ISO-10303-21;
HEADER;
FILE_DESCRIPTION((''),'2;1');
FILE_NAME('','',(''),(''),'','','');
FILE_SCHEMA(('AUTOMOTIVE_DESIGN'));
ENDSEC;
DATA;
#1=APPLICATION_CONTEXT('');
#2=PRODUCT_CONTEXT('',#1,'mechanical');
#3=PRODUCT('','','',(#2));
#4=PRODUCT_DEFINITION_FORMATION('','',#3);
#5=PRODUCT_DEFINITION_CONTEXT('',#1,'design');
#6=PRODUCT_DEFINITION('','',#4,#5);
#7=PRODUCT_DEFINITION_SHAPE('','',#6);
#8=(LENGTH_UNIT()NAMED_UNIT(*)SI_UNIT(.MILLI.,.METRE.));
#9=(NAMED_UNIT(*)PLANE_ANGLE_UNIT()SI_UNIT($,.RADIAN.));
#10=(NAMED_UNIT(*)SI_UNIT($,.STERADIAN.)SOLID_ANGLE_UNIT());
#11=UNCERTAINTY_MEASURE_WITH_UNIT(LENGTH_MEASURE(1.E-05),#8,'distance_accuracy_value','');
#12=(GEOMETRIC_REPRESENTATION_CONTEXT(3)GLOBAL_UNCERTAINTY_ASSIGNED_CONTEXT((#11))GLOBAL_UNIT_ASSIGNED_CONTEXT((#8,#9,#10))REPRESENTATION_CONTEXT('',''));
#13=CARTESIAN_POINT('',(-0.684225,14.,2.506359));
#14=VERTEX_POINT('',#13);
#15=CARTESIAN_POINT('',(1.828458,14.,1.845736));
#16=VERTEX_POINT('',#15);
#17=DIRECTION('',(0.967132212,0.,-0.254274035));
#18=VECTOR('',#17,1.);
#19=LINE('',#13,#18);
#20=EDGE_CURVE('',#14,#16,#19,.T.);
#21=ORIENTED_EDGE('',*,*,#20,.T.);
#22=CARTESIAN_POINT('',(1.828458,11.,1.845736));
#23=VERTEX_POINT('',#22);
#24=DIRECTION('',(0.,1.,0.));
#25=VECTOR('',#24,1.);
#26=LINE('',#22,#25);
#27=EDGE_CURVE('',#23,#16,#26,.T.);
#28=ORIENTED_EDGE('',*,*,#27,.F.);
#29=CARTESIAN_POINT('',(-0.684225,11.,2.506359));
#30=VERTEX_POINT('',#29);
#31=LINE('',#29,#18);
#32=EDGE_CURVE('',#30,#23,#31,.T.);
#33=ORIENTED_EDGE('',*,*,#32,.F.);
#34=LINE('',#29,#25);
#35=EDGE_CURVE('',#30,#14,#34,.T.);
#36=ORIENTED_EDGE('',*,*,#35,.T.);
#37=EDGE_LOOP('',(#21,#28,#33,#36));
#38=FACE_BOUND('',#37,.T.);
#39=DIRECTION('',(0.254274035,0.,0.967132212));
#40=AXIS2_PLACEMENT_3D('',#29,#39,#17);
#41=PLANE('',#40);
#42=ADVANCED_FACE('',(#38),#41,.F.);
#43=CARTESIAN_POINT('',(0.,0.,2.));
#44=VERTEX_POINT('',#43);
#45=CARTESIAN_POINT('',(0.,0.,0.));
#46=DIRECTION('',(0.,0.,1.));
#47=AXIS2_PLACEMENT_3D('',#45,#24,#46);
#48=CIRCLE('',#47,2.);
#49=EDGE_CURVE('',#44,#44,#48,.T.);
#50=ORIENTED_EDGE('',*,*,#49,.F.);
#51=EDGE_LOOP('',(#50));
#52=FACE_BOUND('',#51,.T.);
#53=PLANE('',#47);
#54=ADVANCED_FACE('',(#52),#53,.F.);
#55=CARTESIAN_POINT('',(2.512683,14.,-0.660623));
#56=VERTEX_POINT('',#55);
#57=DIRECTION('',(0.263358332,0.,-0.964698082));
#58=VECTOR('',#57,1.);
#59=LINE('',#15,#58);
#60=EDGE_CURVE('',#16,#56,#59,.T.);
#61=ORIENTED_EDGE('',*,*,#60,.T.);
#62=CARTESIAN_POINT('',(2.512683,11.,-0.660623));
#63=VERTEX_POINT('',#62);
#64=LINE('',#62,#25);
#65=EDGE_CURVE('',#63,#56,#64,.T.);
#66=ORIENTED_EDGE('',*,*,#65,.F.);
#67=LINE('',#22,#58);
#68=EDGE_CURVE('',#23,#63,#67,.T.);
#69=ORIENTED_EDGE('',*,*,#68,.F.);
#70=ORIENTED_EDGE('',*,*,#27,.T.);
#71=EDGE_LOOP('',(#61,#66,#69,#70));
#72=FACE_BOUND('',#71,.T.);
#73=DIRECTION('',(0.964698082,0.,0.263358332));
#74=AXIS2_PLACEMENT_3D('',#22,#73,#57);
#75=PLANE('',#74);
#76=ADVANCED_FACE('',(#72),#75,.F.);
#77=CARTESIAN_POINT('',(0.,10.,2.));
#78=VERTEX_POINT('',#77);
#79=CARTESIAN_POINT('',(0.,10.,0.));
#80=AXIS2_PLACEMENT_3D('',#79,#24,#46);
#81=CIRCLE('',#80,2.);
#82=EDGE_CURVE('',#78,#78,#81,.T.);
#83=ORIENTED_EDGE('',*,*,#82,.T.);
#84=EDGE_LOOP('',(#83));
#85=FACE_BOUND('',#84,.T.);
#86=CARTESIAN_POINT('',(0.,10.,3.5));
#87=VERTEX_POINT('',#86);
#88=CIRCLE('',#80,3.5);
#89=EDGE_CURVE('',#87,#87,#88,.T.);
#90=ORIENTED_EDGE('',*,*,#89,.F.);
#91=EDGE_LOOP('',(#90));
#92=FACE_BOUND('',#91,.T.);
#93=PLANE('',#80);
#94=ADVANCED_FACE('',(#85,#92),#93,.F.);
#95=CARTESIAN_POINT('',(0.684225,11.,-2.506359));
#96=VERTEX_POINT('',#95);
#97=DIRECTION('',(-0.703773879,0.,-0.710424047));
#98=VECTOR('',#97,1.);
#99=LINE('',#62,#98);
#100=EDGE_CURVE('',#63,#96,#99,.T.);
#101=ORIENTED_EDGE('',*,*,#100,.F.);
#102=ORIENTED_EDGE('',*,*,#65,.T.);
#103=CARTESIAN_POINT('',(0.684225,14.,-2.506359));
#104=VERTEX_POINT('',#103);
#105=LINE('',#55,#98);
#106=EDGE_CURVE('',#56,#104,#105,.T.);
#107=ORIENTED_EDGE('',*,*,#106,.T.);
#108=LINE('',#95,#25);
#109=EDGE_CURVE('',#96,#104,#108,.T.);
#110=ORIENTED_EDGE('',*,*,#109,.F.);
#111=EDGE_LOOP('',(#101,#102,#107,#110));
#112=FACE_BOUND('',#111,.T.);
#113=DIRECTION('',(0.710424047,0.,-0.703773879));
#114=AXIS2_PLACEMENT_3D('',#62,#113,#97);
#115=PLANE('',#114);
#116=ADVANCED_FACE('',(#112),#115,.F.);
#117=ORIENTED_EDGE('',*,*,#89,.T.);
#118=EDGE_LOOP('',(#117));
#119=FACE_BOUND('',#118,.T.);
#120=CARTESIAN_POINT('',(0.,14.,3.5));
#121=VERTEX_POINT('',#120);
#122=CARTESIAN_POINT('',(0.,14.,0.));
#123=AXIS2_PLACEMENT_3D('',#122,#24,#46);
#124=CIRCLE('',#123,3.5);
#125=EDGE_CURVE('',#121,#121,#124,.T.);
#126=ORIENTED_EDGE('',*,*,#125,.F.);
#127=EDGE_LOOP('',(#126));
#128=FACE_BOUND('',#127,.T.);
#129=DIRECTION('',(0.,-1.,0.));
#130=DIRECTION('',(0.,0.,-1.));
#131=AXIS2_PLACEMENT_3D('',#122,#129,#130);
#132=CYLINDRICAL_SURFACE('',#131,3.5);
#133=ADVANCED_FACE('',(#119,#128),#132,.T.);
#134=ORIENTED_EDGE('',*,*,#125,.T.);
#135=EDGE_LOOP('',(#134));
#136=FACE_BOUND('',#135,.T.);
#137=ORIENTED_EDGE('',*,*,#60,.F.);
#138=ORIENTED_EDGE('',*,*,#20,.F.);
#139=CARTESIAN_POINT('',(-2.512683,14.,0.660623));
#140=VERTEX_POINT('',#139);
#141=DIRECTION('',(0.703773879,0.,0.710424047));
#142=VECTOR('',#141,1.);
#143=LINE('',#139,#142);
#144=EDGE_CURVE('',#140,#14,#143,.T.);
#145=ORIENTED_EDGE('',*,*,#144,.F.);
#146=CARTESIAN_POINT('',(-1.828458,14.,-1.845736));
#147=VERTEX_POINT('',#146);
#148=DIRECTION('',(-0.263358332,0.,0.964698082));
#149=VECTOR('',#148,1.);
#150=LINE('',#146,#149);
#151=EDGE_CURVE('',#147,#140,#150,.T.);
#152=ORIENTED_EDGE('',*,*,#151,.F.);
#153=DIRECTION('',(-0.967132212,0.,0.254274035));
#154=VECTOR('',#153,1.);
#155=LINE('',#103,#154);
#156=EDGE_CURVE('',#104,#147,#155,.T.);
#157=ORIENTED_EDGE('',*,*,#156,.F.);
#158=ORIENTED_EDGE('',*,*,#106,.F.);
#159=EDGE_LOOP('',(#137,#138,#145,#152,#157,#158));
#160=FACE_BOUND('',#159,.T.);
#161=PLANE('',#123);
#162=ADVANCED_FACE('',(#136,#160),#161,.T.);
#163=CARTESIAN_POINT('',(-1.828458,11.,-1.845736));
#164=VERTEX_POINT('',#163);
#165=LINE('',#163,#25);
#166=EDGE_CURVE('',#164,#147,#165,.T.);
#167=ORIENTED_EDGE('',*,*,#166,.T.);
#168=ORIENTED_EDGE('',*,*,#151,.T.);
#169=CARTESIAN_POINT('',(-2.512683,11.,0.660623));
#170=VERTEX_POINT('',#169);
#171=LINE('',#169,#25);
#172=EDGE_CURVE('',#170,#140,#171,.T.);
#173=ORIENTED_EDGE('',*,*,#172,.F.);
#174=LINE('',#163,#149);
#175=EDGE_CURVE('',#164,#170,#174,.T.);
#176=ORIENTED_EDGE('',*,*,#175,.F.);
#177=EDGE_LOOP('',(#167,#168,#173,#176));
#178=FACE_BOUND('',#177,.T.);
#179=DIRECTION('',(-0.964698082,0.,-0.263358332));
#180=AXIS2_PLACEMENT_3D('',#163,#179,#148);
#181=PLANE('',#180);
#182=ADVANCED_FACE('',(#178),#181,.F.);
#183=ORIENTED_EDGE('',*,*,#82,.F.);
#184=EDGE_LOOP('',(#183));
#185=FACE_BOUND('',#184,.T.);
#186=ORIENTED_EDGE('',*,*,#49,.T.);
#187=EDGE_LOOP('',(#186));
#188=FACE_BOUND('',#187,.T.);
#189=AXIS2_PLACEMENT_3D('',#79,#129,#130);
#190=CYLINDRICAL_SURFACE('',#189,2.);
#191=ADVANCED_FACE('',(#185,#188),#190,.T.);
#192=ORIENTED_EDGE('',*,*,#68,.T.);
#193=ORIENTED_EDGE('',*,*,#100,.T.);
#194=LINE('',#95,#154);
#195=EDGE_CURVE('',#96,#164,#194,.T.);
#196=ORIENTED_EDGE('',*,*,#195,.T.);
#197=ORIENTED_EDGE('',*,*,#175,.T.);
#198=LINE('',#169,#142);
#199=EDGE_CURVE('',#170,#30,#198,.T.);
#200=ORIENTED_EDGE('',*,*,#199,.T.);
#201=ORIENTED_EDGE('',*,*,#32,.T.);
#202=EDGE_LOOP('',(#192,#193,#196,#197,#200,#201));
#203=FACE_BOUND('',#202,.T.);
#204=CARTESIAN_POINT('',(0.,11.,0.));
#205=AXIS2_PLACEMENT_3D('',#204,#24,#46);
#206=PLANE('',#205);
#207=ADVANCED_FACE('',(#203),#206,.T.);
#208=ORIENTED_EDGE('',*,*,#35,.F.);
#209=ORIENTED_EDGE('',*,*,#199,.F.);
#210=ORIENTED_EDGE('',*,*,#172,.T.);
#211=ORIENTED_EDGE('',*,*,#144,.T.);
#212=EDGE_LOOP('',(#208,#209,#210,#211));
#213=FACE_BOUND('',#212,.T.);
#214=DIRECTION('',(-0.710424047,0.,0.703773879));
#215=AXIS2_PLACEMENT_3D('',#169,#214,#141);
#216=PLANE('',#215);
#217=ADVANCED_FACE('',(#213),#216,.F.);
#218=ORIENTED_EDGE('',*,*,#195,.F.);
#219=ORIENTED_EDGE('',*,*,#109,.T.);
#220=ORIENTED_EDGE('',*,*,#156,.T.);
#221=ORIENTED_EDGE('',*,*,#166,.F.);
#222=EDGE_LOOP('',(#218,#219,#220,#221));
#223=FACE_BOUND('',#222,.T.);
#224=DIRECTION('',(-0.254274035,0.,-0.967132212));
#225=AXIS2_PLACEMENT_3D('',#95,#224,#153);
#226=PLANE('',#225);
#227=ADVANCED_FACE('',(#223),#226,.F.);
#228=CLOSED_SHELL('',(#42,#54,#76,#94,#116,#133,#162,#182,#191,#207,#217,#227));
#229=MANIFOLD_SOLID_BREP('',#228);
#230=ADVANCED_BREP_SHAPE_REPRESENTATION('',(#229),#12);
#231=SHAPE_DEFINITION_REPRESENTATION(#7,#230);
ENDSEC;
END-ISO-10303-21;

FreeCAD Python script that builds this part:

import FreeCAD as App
import Part
import Sketcher

V = App.Vector
Q = App.Units.Quantity


def add_polygon(sketch, points):
    """Adds a closed chain of lines whose ends are joined by coincident constraints."""
    first, n = sketch.GeometryCount, len(points)
    for a, b in zip(points, points[1:] + points[:1]):
        sketch.addGeometry(Part.LineSegment(App.Vector(*a, 0), App.Vector(*b, 0)), False)
    for i in range(n):
        sketch.addConstraint(Sketcher.Constraint("Coincident", first + i, 2, first + (i + 1) % n, 1))

doc = App.newDocument("Part")
body = doc.addObject("PartDesign::Body", "Body")

sketch1 = doc.addObject("Sketcher::SketchObject", "Sketch")
body.addObject(sketch1)
sketch1.AttachmentSupport = (doc.XZ_Plane, [""])
sketch1.MapMode = "FlatFace"
sketch1.addGeometry(Part.Circle(V(0, 0, 0), V(0, 0, 1), 2), False)
sketch1.addConstraint(Sketcher.Constraint("Coincident", 0, 3, -1, 1))
sketch1.addConstraint(Sketcher.Constraint("Diameter", 0, Q("4 mm")))
pad1 = doc.addObject("PartDesign::Pad", "Pad")
body.addObject(pad1)
pad1.Profile = sketch1
pad1.Length = 10
pad1.Reversed = True

sketch2 = doc.addObject("Sketcher::SketchObject", "Sketch001")
body.addObject(sketch2)
sketch2.AttachmentSupport = (doc.XZ_Plane, [""])
sketch2.MapMode = "FlatFace"
sketch2.AttachmentOffset = App.Placement(V(0, 0, -10), App.Rotation())
sketch2.addGeometry(Part.Circle(V(0, 0, 0), V(0, 0, 1), 3.5), False)
sketch2.addConstraint(Sketcher.Constraint("Coincident", 0, 3, -1, 1))
sketch2.addConstraint(Sketcher.Constraint("Diameter", 0, Q("7 mm")))
pad2 = doc.addObject("PartDesign::Pad", "Pad001")
body.addObject(pad2)
pad2.Profile = sketch2
pad2.Length = 4
pad2.Reversed = True

sketch3 = doc.addObject("Sketcher::SketchObject", "Sketch002")
body.addObject(sketch3)
sketch3.AttachmentSupport = (doc.XZ_Plane, [""])
sketch3.MapMode = "FlatFace"
sketch3.AttachmentOffset = App.Placement(V(0, 0, -14), App.Rotation())
add_polygon(sketch3, [(2.5, -0.7), (0.7, -2.5), (-1.8, -1.8), (-2.5, 0.7), (-0.7, 2.5), (1.8, 1.8)])
sketch3.addConstraint(Sketcher.Constraint("Symmetric", 0, 2, 3, 2, -1, 1))
sketch3.addConstraint(Sketcher.Constraint("Symmetric", 1, 2, 4, 2, -1, 1))
sketch3.addConstraint(Sketcher.Constraint("Symmetric", 2, 2, 5, 2, -1, 1))
sketch3.addConstraint(Sketcher.Constraint("Equal", 0, 1))
sketch3.addConstraint(Sketcher.Constraint("Equal", 1, 2))
sketch3.addConstraint(Sketcher.Constraint("DistanceY", 0, 2, -1, 1, Q("2.506359 mm")))
sketch3.addConstraint(Sketcher.Constraint("DistanceX", 1, 2, -1, 1, Q("1.828458 mm")))
sketch3.addConstraint(Sketcher.Constraint("DistanceY", 1, 2, 2, 2, Q("2.506359 mm")))
sketch3.addConstraint(Sketcher.Constraint("DistanceX", 2, 2, 0, 2, Q("3.196908 mm")))
pocket1 = doc.addObject("PartDesign::Pocket", "Pocket")
body.addObject(pocket1)
pocket1.Profile = sketch3
pocket1.Length = 3
pocket1.Reversed = True

doc.recompute()
